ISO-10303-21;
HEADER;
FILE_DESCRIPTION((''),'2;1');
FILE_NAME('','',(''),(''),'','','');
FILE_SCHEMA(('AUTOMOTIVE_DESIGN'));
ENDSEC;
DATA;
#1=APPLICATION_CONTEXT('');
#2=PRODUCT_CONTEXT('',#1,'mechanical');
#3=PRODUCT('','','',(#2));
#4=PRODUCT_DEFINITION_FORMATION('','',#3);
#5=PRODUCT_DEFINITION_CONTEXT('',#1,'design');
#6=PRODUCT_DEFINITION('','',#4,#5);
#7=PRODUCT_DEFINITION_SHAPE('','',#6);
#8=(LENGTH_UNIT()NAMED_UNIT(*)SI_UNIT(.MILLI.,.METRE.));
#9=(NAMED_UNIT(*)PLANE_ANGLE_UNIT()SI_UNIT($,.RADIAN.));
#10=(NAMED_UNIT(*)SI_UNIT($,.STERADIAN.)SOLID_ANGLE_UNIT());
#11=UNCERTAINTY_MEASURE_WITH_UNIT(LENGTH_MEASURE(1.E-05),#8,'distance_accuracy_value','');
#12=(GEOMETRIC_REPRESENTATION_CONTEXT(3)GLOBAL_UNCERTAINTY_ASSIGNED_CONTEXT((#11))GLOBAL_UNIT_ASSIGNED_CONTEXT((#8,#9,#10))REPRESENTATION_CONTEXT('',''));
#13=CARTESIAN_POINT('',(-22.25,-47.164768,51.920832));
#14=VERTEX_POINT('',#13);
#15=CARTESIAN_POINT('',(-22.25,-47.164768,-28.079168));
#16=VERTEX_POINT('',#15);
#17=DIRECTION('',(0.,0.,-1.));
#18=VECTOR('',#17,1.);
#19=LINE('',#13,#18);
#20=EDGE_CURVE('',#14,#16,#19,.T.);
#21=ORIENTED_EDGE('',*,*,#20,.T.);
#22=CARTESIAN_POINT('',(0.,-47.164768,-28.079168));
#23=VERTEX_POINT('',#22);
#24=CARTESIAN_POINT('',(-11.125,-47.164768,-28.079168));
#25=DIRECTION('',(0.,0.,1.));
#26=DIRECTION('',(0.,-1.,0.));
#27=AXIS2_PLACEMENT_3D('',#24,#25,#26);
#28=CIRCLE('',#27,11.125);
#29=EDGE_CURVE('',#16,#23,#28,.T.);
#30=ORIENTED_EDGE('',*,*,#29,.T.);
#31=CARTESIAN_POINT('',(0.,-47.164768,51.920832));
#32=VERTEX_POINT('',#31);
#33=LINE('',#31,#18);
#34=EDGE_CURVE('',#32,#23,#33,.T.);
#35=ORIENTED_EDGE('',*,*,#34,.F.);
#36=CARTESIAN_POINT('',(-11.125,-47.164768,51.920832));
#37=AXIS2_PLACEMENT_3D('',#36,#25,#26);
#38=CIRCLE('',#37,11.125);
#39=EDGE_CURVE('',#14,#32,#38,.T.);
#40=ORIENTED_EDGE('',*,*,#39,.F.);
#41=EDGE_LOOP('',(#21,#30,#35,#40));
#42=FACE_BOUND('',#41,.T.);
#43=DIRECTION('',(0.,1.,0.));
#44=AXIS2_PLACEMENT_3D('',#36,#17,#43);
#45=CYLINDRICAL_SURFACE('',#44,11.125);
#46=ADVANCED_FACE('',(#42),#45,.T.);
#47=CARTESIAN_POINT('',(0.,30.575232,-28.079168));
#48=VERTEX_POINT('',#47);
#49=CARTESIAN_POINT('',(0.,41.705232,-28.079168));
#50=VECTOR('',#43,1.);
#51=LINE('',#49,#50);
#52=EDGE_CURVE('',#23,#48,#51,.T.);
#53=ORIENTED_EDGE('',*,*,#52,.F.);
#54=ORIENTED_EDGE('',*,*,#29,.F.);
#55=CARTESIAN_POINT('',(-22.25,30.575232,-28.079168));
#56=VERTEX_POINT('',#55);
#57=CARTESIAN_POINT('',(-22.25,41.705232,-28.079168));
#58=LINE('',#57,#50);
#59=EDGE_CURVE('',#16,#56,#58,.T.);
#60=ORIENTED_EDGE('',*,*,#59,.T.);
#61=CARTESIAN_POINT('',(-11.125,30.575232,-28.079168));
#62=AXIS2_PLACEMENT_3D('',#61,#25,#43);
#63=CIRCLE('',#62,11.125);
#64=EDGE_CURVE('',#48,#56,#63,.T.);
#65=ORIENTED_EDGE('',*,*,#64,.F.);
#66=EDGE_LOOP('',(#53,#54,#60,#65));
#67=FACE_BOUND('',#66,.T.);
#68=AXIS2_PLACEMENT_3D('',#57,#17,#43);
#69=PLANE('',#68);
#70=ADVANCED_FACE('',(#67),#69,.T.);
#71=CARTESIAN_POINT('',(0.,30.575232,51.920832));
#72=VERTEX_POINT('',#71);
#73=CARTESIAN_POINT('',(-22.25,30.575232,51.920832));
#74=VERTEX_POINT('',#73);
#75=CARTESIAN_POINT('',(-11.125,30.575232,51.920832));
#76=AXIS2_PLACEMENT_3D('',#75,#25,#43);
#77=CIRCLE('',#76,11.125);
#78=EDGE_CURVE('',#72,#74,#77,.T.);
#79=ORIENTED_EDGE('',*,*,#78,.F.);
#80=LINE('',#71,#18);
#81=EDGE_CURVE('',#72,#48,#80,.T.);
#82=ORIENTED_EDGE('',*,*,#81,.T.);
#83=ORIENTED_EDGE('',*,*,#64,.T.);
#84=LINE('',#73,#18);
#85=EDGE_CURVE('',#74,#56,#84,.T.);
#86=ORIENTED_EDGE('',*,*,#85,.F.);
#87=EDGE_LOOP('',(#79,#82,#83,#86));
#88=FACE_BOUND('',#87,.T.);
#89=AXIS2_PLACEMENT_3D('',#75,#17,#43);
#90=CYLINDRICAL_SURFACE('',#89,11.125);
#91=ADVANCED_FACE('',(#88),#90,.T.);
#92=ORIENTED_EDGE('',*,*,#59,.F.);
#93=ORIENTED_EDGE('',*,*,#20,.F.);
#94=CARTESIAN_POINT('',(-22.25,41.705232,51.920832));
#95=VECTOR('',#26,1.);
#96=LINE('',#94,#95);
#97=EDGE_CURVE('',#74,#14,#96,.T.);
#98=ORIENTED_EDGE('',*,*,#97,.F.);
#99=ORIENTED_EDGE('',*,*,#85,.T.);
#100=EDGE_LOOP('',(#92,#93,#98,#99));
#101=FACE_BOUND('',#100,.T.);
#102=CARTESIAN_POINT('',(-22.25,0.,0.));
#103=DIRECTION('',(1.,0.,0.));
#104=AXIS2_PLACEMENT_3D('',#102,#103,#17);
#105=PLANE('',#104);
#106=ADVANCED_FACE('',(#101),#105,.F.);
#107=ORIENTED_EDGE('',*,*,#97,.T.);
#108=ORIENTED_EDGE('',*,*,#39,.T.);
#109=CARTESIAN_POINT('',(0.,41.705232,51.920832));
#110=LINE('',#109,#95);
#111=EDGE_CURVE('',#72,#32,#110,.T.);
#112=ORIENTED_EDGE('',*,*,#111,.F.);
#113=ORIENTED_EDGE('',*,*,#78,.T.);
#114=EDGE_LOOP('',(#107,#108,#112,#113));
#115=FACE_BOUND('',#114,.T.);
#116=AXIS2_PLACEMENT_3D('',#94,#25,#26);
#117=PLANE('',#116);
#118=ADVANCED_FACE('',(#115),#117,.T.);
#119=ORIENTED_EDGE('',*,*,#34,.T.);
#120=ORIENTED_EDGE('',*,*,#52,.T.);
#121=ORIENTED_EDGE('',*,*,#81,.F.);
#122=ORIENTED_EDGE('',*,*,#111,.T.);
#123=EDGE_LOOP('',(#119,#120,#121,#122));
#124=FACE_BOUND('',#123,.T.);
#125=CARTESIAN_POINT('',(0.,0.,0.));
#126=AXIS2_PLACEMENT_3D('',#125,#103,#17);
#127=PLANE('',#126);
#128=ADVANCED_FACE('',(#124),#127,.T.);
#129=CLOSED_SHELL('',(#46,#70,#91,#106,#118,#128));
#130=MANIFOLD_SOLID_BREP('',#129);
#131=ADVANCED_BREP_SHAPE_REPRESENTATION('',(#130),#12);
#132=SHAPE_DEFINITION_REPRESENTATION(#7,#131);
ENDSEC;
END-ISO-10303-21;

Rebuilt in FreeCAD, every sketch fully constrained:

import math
import FreeCAD as App
import Part
import Sketcher

V = App.Vector
Q = App.Units.Quantity


def add_polygon(sketch, points):
    """Adds a closed chain of lines whose ends are joined by coincident constraints."""
    first, n = sketch.GeometryCount, len(points)
    for a, b in zip(points, points[1:] + points[:1]):
        sketch.addGeometry(Part.LineSegment(App.Vector(*a, 0), App.Vector(*b, 0)), False)
    for i in range(n):
        sketch.addConstraint(Sketcher.Constraint("Coincident", first + i, 2, first + (i + 1) % n, 1))

doc = App.newDocument("Part")
body = doc.addObject("PartDesign::Body", "Body")

sketch1 = doc.addObject("Sketcher::SketchObject", "Sketch")
body.addObject(sketch1)
sketch1.AttachmentSupport = (doc.YZ_Plane, [""])
sketch1.MapMode = "FlatFace"
add_polygon(sketch1, [(42, 52), (-58, 52), (-58, -28), (42, -28)])
sketch1.addConstraint([
    Sketcher.Constraint("Horizontal", 0),
    Sketcher.Constraint("Vertical", 1),
    Sketcher.Constraint("Horizontal", 2),
    Sketcher.Constraint("Vertical", 3),
    Sketcher.Constraint("DistanceX", 0, 2, 0, 1, Q("100 mm")),
    Sketcher.Constraint("DistanceY", 1, 2, 1, 1, Q("80 mm")),
    Sketcher.Constraint("DistanceY", -1, 1, 0, 2, Q("51.920832 mm")),
    Sketcher.Constraint("DistanceX", 0, 2, -1, 1, Q("58.294768 mm")),
])
pad1 = doc.addObject("PartDesign::Pad", "Pad")
body.addObject(pad1)
pad1.Profile = sketch1
pad1.Length = 22.25
pad1.Reversed = True

sketch2 = doc.addObject("Sketcher::SketchObject", "Sketch001")
body.addObject(sketch2)
sketch2.AttachmentSupport = (doc.XY_Plane, [""])
sketch2.MapMode = "FlatFace"
sketch2.AttachmentOffset = App.Placement(V(0, 0, -28.079168), App.Rotation())
sketch2.addGeometry([
    Part.LineSegment(V(-22, -58, 0), V(-22, -47, 0)),
    Part.ArcOfCircle(Part.Circle(V(-11, -47, 0), V(0, 0, 1), 11), math.radians(180), math.radians(360)),
    Part.LineSegment(V(0, -47, 0), V(0, -58, 0)),
    Part.LineSegment(V(0, -58, 0), V(-22, -58, 0)),
    Part.LineSegment(V(0, 42, 0), V(0, 31, 0)),
    Part.ArcOfCircle(Part.Circle(V(-11, 31, 0), V(0, 0, 1), 11), math.radians(0), math.radians(180)),
    Part.LineSegment(V(-22, 31, 0), V(-22, 42, 0)),
    Part.LineSegment(V(-22, 42, 0), V(0, 42, 0)),
], False)
sketch2.addConstraint([
    Sketcher.Constraint("Tangent", 0, 2, 1, 1),
    Sketcher.Constraint("Tangent", 1, 2, 2, 1),
    Sketcher.Constraint("Coincident", 2, 2, 3, 1),
    Sketcher.Constraint("Coincident", 3, 2, 0, 1),
    Sketcher.Constraint("Tangent", 4, 2, 5, 1),
    Sketcher.Constraint("Tangent", 5, 2, 6, 1),
    Sketcher.Constraint("Coincident", 6, 2, 7, 1),
    Sketcher.Constraint("Coincident", 7, 2, 4, 1),
    Sketcher.Constraint("Vertical", 0),
    Sketcher.Constraint("Vertical", 2),
    Sketcher.Constraint("Horizontal", 3),
    Sketcher.Constraint("Vertical", 4),
    Sketcher.Constraint("Vertical", 6),
    Sketcher.Constraint("Horizontal", 7),
    Sketcher.Constraint("Equal", 1, 5),
    Sketcher.Constraint("PointOnObject", 1, 2, -2),
    Sketcher.Constraint("PointOnObject", 4, 2, -2),
    Sketcher.Constraint("Equal", 2, 4),
    Sketcher.Constraint("Radius", 1, Q("11.125 mm")),
    Sketcher.Constraint("DistanceY", 0, 1, 0, 2, Q("11.13 mm")),
    Sketcher.Constraint("DistanceY", 1, 3, 5, 3, Q("77.74 mm")),
    Sketcher.Constraint("DistanceY", 1, 3, -1, 1, Q("47.164768 mm")),
])
pocket1 = doc.addObject("PartDesign::Pocket", "Pocket")
body.addObject(pocket1)
pocket1.Profile = sketch2
pocket1.Type = "ThroughAll"
pocket1.Reversed = True

doc.recompute()
